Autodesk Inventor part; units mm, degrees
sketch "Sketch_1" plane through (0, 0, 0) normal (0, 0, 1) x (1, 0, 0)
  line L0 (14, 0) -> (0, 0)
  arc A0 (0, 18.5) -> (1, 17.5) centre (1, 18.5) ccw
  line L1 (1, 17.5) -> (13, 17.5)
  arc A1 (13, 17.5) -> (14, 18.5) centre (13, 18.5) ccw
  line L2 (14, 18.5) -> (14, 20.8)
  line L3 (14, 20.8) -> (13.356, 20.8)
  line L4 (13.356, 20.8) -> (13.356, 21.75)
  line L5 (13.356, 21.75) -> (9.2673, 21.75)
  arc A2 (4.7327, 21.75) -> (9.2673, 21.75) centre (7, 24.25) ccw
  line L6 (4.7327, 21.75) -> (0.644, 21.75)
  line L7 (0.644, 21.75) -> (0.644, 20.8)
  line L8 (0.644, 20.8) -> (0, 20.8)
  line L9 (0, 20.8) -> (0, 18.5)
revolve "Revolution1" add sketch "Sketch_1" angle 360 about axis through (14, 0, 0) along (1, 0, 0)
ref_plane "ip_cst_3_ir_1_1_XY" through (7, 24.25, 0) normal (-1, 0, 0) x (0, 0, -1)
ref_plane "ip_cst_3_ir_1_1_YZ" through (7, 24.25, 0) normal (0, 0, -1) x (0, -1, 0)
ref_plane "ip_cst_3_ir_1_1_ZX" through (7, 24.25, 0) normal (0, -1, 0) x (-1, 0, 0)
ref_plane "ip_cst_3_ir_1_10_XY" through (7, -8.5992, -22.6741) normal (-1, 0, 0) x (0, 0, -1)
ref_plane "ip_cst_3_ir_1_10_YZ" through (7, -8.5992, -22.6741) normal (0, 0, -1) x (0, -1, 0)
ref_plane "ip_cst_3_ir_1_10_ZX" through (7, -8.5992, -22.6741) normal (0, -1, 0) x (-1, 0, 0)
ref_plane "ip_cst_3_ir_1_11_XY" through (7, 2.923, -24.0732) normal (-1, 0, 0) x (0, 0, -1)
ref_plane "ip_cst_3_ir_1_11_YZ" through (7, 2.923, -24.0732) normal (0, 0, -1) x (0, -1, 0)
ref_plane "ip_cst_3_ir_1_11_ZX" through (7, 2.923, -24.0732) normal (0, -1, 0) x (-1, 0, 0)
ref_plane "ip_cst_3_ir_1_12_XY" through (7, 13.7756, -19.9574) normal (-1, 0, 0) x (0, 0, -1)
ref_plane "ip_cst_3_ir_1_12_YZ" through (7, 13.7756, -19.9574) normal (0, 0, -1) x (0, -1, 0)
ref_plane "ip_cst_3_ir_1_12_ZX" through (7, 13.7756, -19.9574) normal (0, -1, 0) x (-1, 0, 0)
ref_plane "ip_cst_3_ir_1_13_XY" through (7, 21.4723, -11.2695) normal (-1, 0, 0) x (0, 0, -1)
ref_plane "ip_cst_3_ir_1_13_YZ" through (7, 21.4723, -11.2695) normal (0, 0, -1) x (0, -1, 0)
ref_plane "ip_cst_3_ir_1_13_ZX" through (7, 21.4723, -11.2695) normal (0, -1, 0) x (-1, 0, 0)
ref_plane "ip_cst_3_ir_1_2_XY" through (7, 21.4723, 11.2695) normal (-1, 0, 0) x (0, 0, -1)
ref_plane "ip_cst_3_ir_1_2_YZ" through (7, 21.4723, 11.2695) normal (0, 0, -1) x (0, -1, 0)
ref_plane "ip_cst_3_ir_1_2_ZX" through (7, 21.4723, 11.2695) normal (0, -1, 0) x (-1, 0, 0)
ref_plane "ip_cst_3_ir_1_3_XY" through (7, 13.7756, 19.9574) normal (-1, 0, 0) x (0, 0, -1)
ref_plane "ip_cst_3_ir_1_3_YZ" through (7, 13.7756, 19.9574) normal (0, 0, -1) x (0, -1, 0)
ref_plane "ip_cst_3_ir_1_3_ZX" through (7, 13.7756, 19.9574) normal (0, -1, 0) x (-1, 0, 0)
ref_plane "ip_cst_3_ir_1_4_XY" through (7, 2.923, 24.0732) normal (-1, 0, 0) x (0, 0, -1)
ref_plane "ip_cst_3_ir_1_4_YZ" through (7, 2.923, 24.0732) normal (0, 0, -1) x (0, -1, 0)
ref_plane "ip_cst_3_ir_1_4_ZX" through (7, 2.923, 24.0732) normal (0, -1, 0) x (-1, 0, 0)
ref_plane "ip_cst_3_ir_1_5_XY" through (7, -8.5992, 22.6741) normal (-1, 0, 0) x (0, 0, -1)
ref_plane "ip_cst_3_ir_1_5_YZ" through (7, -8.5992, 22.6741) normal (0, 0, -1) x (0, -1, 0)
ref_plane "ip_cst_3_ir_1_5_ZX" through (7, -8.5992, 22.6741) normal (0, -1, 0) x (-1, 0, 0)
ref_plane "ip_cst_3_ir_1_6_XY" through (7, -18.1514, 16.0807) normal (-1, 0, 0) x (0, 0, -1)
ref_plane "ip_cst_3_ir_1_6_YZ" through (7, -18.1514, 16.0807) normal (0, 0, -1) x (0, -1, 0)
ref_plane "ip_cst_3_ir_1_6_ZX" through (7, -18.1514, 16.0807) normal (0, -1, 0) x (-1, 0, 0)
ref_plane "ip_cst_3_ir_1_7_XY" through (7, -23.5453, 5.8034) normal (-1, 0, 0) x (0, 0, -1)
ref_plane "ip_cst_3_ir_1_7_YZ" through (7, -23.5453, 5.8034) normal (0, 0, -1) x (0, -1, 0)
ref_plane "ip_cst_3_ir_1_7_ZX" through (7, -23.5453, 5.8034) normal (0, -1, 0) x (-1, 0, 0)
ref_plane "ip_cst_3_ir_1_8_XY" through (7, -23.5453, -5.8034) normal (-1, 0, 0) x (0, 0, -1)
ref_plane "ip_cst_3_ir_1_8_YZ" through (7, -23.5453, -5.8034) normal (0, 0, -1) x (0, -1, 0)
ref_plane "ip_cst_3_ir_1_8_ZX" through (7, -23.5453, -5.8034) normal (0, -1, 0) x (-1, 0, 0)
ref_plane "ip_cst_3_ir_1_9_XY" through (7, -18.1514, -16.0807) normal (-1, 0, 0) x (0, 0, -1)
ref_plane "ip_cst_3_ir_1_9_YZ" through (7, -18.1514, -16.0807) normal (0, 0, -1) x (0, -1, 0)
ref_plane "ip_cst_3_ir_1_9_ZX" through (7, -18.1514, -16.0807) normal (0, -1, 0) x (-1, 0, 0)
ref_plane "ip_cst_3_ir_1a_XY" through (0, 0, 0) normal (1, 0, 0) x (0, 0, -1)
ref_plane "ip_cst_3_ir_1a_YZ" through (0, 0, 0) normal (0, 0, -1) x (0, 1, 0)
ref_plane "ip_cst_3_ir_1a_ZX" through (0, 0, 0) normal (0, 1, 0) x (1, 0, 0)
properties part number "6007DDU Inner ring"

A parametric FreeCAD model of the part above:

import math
import FreeCAD as App
import Part
import Sketcher

doc = App.newDocument("Part")
body = doc.addObject("PartDesign::Body", "Body")

# Sketch on XY plane
sketch1 = body.newObject("Sketcher::SketchObject", "Sketch")
sketch1.AttachmentSupport = (doc.getObject("XY_Plane"), [""])
sketch1.MapMode = "FlatFace"
sketch1.addGeometry(Part.LineSegment(App.Vector(0, 20.8, 0), App.Vector(0, 18.5, 0)), False)
sketch1.addGeometry(Part.ArcOfCircle(Part.Circle(App.Vector(1, 18.5, 0), App.Vector(0, 0, 1), 1), math.radians(180), math.radians(270)), False)
sketch1.addGeometry(Part.LineSegment(App.Vector(1, 17.5, 0), App.Vector(13, 17.5, 0)), False)
sketch1.addGeometry(Part.ArcOfCircle(Part.Circle(App.Vector(13, 18.5, 0), App.Vector(0, 0, 1), 1), math.radians(-90), math.radians(0)), False)
sketch1.addGeometry(Part.LineSegment(App.Vector(14, 18.5, 0), App.Vector(14, 20.8, 0)), False)
sketch1.addGeometry(Part.LineSegment(App.Vector(14, 20.8, 0), App.Vector(13.4, 20.8, 0)), False)
sketch1.addGeometry(Part.LineSegment(App.Vector(13.4, 20.8, 0), App.Vector(13.4, 21.8, 0)), False)
sketch1.addGeometry(Part.LineSegment(App.Vector(13.4, 21.8, 0), App.Vector(9.3, 21.8, 0)), False)
sketch1.addGeometry(Part.ArcOfCircle(Part.Circle(App.Vector(7, 24.2, 0), App.Vector(0, 0, 1), 3.4), math.radians(-132), math.radians(-48)), False)
sketch1.addGeometry(Part.LineSegment(App.Vector(4.7, 21.8, 0), App.Vector(0.6, 21.8, 0)), False)
sketch1.addGeometry(Part.LineSegment(App.Vector(0.6, 21.8, 0), App.Vector(0.6, 20.8, 0)), False)
sketch1.addGeometry(Part.LineSegment(App.Vector(0.6, 20.8, 0), App.Vector(0, 20.8, 0)), False)
sketch1.addConstraint(Sketcher.Constraint("Tangent", 0, 2, 1, 1))
sketch1.addConstraint(Sketcher.Constraint("Tangent", 1, 2, 2, 1))
sketch1.addConstraint(Sketcher.Constraint("Tangent", 2, 2, 3, 1))
sketch1.addConstraint(Sketcher.Constraint("Tangent", 3, 2, 4, 1))
sketch1.addConstraint(Sketcher.Constraint("Coincident", 4, 2, 5, 1))
sketch1.addConstraint(Sketcher.Constraint("Coincident", 5, 2, 6, 1))
sketch1.addConstraint(Sketcher.Constraint("Coincident", 6, 2, 7, 1))
sketch1.addConstraint(Sketcher.Constraint("Coincident", 7, 2, 8, 2))
sketch1.addConstraint(Sketcher.Constraint("Coincident", 8, 1, 9, 1))
sketch1.addConstraint(Sketcher.Constraint("Coincident", 9, 2, 10, 1))
sketch1.addConstraint(Sketcher.Constraint("Coincident", 10, 2, 11, 1))
sketch1.addConstraint(Sketcher.Constraint("Coincident", 11, 2, 0, 1))
sketch1.addConstraint(Sketcher.Constraint("Vertical", 0))
sketch1.addConstraint(Sketcher.Constraint("Horizontal", 2))
sketch1.addConstraint(Sketcher.Constraint("Vertical", 4))
sketch1.addConstraint(Sketcher.Constraint("Horizontal", 5))
sketch1.addConstraint(Sketcher.Constraint("Vertical", 6))
sketch1.addConstraint(Sketcher.Constraint("Horizontal", 7))
sketch1.addConstraint(Sketcher.Constraint("Horizontal", 9))
sketch1.addConstraint(Sketcher.Constraint("Vertical", 10))
sketch1.addConstraint(Sketcher.Constraint("Horizontal", 11))
sketch1.addConstraint(Sketcher.Constraint("Equal", 1, 3))
sketch1.addConstraint(Sketcher.Constraint("PointOnObject", 0, 2, -2))
sketch1.addConstraint(Sketcher.Constraint("Horizontal", 7, 2, 8, 1))
sketch1.addConstraint(Sketcher.Constraint("Horizontal", 5, 2, 10, 2))
sketch1.addConstraint(Sketcher.Constraint("Equal", 7, 9))
sketch1.addConstraint(Sketcher.Constraint("Equal", 5, 11))
sketch1.addConstraint(Sketcher.Constraint("Radius", 1, 1.0))
sketch1.addConstraint(Sketcher.Constraint("DistanceX", 2, 1, 2, 2, 12.0))
sketch1.addConstraint(Sketcher.Constraint("DistanceY", 0, 2, 0, 1, 2.3))
sketch1.addConstraint(Sketcher.Constraint("Radius", 8, 3.375))
sketch1.addConstraint(Sketcher.Constraint("DistanceY", 6, 1, 6, 2, 0.95))
sketch1.addConstraint(Sketcher.Constraint("DistanceY", -1, 1, 1, 3, 18.5))
sketch1.addConstraint(Sketcher.Constraint("DistanceY", 7, 2, 8, 3, 2.5))
sketch1.addConstraint(Sketcher.Constraint("DistanceX", 5, 2, 5, 1, 0.644))
revolution = body.newObject("PartDesign::Revolution", "Revolution")
revolution.Profile = sketch1
revolution.ReferenceAxis = (sketch1, ["H_Axis"])
revolution.Angle = 360

doc.recompute()
